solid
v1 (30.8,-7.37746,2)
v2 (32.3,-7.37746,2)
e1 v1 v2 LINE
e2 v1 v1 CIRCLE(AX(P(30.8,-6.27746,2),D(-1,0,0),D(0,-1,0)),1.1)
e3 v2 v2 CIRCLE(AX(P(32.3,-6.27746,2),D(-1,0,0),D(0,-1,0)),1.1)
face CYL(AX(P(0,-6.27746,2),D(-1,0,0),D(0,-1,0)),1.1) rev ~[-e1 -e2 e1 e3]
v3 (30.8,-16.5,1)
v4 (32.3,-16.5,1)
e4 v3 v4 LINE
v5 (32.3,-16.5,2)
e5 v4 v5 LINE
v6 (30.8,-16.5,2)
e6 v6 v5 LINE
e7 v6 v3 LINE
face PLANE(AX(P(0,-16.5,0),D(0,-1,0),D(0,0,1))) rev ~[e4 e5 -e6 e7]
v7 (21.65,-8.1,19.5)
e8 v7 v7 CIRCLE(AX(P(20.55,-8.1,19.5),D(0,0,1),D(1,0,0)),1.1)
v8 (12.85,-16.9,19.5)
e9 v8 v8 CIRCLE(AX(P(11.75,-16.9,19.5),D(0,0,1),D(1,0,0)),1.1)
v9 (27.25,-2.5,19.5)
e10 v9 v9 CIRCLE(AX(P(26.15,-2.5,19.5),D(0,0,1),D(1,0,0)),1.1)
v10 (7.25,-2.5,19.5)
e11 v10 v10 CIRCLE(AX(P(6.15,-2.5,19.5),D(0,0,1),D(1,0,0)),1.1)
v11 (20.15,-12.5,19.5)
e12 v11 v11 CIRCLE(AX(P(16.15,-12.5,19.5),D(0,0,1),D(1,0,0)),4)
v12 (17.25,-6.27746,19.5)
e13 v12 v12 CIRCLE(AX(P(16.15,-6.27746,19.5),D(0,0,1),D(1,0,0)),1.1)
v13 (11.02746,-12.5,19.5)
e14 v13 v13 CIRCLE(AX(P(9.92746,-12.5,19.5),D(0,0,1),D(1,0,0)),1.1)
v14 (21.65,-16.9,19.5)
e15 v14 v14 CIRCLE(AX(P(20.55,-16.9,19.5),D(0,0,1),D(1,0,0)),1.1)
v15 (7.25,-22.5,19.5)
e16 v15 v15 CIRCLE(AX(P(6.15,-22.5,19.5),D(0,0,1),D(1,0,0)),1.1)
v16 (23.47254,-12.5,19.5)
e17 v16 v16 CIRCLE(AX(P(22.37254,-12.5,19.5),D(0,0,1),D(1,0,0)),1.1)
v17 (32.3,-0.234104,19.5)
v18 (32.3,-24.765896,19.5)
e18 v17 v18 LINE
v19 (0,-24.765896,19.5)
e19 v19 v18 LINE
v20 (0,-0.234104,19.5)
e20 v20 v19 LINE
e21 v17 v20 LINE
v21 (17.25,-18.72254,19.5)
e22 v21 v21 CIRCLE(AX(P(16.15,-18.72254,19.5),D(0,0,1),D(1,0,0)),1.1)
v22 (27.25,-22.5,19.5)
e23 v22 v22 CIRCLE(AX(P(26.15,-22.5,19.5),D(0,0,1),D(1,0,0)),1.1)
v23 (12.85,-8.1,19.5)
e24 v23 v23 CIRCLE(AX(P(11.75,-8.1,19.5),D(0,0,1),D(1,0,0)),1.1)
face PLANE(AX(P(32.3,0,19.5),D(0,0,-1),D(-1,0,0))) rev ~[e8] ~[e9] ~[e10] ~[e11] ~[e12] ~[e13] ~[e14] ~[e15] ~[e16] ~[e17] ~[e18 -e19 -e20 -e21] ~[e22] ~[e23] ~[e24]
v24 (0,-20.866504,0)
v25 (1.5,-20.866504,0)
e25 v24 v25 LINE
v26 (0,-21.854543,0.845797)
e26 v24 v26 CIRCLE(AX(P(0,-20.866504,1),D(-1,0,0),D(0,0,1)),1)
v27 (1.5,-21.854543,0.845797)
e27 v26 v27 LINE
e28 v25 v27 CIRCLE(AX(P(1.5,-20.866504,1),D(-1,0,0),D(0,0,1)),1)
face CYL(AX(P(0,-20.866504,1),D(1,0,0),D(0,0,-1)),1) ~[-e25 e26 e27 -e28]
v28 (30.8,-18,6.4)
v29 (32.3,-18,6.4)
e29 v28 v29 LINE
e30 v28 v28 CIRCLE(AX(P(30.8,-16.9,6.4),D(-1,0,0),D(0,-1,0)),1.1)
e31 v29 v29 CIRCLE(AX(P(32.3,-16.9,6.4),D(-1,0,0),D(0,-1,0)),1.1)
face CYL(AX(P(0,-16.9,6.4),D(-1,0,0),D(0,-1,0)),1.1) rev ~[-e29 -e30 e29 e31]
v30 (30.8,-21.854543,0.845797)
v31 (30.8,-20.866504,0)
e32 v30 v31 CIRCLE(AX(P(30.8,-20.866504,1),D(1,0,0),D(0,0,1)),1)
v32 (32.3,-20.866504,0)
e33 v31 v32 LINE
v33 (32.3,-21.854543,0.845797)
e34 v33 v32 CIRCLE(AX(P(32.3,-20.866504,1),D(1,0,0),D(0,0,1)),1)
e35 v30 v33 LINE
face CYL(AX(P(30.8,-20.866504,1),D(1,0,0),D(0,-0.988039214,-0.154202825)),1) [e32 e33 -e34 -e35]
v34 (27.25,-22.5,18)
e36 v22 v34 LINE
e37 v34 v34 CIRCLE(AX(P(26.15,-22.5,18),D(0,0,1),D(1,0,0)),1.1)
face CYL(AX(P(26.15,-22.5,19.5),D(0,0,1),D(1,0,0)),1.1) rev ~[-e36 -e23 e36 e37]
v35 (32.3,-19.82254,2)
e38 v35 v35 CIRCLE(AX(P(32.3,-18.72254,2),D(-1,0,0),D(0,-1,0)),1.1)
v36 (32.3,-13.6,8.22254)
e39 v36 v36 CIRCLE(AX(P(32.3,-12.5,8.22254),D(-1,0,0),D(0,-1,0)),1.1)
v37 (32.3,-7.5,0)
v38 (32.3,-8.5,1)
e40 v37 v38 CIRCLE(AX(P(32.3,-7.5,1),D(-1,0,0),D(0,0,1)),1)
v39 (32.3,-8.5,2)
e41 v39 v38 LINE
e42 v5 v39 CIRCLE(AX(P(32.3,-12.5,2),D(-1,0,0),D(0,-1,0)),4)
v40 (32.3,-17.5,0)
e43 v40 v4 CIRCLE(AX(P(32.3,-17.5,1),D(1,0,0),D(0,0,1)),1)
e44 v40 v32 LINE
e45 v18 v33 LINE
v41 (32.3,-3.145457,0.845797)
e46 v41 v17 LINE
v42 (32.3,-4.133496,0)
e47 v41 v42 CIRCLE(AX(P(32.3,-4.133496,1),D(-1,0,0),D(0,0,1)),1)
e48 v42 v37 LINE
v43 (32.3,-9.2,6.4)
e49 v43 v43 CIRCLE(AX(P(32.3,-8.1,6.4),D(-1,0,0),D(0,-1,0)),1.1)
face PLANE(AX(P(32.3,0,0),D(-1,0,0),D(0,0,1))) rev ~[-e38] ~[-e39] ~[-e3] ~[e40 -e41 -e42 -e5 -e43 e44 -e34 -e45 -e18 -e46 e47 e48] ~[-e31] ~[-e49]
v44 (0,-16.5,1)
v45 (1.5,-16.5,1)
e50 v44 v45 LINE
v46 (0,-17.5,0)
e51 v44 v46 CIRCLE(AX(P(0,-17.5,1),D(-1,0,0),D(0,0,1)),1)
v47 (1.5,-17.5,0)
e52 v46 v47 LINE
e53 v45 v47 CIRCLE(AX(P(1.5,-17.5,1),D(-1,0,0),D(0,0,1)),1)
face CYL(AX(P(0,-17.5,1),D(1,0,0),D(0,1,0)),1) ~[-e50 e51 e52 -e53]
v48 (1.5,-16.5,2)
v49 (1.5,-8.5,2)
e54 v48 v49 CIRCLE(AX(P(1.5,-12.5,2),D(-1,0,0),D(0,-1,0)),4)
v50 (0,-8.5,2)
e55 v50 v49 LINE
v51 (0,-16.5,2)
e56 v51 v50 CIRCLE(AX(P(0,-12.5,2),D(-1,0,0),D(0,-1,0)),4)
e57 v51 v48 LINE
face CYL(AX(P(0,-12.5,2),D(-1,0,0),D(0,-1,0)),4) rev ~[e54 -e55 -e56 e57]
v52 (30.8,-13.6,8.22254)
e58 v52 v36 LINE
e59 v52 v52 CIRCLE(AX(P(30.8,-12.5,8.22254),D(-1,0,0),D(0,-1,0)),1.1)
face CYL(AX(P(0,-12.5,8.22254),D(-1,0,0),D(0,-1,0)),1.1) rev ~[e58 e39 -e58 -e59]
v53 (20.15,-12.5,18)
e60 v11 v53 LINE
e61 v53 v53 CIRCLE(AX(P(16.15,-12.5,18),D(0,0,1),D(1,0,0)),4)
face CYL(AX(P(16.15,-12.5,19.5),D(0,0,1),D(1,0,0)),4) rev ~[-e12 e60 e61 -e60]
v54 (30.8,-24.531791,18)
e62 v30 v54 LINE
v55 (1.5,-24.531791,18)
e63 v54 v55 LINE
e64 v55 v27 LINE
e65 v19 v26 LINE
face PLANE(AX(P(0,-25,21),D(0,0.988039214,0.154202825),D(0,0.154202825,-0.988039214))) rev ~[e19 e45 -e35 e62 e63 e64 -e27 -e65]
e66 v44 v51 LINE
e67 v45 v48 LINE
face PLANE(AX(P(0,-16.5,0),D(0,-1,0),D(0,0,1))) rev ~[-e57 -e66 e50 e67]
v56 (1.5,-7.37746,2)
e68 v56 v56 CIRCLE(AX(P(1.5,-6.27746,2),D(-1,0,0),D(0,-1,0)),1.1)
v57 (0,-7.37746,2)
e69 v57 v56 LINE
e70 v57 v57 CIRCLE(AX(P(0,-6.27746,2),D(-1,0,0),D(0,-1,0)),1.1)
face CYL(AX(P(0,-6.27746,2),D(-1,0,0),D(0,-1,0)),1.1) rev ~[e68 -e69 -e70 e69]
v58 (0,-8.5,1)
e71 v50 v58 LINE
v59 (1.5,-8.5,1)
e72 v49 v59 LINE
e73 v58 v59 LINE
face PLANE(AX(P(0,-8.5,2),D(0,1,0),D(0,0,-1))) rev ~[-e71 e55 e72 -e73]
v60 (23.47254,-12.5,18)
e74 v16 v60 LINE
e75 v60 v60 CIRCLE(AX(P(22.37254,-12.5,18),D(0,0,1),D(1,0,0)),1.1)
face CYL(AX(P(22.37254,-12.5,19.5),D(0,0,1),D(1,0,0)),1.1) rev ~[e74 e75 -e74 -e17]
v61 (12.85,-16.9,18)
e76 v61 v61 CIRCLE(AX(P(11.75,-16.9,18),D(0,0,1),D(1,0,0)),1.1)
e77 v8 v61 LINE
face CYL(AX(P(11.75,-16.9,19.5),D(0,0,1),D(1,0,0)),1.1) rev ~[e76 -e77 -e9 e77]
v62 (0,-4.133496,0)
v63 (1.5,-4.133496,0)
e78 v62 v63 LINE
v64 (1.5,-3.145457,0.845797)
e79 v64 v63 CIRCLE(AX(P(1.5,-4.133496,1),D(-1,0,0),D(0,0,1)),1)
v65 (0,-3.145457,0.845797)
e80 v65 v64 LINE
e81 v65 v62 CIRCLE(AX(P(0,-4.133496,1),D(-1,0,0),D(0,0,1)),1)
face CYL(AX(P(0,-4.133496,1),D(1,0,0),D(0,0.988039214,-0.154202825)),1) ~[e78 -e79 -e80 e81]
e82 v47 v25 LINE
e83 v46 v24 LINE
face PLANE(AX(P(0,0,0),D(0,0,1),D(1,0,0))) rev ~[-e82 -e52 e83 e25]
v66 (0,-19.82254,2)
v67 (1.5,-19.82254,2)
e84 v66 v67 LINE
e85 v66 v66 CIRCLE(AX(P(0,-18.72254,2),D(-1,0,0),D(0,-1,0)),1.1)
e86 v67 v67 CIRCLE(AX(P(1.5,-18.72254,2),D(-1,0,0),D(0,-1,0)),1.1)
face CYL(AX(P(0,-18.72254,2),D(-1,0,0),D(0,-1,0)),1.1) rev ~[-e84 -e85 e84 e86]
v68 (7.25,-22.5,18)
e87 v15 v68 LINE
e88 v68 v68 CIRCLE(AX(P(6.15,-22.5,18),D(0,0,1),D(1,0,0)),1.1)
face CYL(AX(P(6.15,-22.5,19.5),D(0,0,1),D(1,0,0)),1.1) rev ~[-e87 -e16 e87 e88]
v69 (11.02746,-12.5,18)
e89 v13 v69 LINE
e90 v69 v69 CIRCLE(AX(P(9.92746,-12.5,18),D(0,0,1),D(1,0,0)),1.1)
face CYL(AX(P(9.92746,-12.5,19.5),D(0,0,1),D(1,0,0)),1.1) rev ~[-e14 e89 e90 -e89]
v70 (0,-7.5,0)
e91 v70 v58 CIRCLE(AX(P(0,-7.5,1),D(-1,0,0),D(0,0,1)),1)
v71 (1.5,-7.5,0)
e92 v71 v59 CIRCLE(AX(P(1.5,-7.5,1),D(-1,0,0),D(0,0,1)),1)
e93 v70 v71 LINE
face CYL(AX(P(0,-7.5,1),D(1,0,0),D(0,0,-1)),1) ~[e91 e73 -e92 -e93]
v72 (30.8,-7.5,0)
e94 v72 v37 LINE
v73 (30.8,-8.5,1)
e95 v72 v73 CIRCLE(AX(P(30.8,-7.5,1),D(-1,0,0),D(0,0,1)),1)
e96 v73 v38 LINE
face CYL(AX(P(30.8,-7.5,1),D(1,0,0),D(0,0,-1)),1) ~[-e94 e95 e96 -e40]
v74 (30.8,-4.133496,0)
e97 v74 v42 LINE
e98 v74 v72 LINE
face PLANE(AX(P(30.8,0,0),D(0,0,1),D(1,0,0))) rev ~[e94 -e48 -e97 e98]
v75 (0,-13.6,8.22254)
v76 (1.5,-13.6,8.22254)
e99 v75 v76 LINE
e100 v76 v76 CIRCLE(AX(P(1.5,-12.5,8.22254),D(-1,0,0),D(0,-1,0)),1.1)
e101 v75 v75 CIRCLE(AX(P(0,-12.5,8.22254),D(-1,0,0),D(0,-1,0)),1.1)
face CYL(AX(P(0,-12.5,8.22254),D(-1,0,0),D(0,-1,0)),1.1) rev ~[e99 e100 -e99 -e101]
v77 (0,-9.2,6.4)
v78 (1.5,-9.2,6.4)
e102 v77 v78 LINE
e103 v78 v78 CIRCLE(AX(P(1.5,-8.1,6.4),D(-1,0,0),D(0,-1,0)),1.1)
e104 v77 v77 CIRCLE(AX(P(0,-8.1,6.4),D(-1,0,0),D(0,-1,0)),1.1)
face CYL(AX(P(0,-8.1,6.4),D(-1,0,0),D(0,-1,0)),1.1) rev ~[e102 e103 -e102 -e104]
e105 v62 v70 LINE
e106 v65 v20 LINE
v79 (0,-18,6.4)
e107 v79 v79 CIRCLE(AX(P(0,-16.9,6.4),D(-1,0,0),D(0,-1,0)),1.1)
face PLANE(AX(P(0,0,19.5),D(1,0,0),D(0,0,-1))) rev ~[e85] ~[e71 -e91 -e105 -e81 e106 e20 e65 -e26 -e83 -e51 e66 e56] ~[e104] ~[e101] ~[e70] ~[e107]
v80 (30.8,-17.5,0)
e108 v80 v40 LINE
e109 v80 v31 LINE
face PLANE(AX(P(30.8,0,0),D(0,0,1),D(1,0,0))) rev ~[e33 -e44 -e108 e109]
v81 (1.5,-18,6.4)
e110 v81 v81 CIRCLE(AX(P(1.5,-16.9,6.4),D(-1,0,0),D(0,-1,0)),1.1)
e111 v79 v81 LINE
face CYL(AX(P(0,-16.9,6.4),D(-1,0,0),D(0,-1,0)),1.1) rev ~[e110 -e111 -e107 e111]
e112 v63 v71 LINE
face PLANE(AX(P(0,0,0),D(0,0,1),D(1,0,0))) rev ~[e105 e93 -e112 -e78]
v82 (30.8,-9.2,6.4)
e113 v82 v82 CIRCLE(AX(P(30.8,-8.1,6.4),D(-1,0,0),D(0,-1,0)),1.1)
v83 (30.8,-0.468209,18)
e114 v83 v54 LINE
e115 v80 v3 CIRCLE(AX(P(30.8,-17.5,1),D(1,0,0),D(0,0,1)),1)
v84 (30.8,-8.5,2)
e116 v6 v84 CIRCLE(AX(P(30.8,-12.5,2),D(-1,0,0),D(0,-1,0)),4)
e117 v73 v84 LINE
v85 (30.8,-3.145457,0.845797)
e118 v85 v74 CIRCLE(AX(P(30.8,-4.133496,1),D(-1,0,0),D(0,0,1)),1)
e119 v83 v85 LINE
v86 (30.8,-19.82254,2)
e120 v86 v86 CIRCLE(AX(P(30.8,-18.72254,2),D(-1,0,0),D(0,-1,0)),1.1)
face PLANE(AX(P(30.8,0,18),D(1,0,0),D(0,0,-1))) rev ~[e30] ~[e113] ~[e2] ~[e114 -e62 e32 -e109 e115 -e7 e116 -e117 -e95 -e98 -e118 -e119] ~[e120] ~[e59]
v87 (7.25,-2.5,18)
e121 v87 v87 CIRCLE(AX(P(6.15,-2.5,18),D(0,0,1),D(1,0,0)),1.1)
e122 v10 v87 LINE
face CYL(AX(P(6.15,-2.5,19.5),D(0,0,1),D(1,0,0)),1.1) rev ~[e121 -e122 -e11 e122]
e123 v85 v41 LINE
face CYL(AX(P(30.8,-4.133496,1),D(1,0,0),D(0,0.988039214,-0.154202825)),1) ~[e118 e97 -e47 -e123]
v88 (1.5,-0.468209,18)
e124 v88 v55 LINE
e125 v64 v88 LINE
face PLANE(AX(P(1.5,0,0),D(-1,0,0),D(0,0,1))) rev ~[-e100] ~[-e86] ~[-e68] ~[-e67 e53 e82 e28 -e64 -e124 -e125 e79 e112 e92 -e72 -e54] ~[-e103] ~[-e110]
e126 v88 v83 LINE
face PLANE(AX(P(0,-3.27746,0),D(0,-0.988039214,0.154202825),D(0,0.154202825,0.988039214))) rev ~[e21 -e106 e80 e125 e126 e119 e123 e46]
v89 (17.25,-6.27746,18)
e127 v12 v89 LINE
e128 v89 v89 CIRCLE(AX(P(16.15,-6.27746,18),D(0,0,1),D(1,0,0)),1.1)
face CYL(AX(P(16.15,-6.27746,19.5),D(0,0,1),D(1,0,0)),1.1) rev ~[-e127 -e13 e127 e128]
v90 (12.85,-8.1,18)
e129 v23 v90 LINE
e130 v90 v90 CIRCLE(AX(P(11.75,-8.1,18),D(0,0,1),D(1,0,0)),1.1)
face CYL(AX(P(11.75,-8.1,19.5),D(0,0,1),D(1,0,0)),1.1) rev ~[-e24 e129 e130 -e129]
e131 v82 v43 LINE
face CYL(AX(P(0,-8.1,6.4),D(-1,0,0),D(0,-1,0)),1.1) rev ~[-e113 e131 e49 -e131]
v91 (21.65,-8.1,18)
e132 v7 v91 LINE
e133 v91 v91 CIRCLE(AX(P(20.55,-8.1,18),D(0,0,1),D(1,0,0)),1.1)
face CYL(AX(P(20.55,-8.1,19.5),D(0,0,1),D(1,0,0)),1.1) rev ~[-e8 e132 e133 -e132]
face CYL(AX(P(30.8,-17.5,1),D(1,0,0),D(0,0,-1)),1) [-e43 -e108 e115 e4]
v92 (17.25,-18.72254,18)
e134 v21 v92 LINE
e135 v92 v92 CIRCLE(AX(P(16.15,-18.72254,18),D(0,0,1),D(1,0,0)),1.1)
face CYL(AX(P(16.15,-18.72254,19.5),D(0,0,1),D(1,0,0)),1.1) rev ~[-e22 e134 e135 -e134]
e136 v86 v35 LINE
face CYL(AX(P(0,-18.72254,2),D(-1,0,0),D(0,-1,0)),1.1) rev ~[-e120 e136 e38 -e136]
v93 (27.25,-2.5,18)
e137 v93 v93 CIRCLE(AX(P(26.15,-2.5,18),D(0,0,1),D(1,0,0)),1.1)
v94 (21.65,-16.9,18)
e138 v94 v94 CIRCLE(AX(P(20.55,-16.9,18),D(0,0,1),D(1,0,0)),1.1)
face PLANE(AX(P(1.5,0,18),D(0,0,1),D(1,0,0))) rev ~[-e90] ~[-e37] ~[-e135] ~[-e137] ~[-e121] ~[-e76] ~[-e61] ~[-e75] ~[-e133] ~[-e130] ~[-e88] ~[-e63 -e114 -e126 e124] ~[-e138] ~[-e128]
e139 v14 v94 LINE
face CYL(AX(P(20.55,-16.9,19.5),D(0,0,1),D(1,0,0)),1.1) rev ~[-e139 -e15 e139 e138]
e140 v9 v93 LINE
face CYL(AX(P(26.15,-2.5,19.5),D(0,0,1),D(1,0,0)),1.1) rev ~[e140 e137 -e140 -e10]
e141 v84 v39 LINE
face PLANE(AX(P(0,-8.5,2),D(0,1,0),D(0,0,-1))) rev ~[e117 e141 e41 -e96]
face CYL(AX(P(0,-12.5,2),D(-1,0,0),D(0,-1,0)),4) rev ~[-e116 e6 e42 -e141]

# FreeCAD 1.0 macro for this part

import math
import FreeCAD as App
import Part
import Sketcher


def edges_at(feature, points):
    """Names of the edges that pass closest to the given points."""
    edges = feature.Shape.Edges
    near = lambda p: min(range(len(edges)), key=lambda i: edges[i].distToShape(Part.Vertex(*p))[0])
    return sorted({f"Edge{near(p) + 1}" for p in points})


def add_polygon(sketch, points):
    """Adds a closed chain of lines whose ends are joined by coincident constraints."""
    first, n = sketch.GeometryCount, len(points)
    for a, b in zip(points, points[1:] + points[:1]):
        sketch.addGeometry(Part.LineSegment(App.Vector(*a, 0), App.Vector(*b, 0)), False)
    for i in range(n):
        sketch.addConstraint(Sketcher.Constraint("Coincident", first + i, 2, first + (i + 1) % n, 1))

doc = App.newDocument("Part")
body = doc.addObject("PartDesign::Body", "Body")

# Sketch on XZ plane
sketch1 = doc.addObject("Sketcher::SketchObject", "Sketch")
body.addObject(sketch1)
sketch1.AttachmentSupport = (doc.XZ_Plane, [""])
sketch1.MapMode = "FlatFace"
add_polygon(sketch1, [(0, 19.5), (0, 0), (1.5, 0), (1.5, 18), (30.8, 18), (30.8, 0), (32.3, 0), (32.3, 19.5)])  # lines 0-7
sketch1.addConstraint([
    Sketcher.Constraint("Vertical", 0),
    Sketcher.Constraint("Horizontal", 1),
    Sketcher.Constraint("Vertical", 2),
    Sketcher.Constraint("Horizontal", 3),
    Sketcher.Constraint("Vertical", 4),
    Sketcher.Constraint("Horizontal", 5),
    Sketcher.Constraint("Vertical", 6),
    Sketcher.Constraint("Horizontal", 7),
    Sketcher.Constraint("Coincident", 0, 2, -1, 1),
    Sketcher.Constraint("PointOnObject", 4, 2, -1),
    Sketcher.Constraint("Equal", 1, 5),
    Sketcher.Constraint("DistanceY", 2, 1, 2, 2, 18.0),
    Sketcher.Constraint("DistanceX", 1, 1, 1, 2, 1.5),
    Sketcher.Constraint("DistanceX", 3, 1, 3, 2, 29.3),
    Sketcher.Constraint("DistanceY", 0, 2, 0, 1, 19.5),
])
pad1 = doc.addObject("PartDesign::Pad", "Pad")
body.addObject(pad1)
pad1.Profile = sketch1
pad1.Length = 25

# Sketch on YZ plane
sketch2 = doc.addObject("Sketcher::SketchObject", "Sketch001")
body.addObject(sketch2)
sketch2.AttachmentSupport = (doc.YZ_Plane, [""])
sketch2.MapMode = "FlatFace"
sketch2.addGeometry(Part.LineSegment(App.Vector(-16.5, 0, 0), App.Vector(-16.5, 2, 0)), False)  # 0
sketch2.addGeometry(Part.ArcOfCircle(Part.Circle(App.Vector(-12.5, 2, 0), App.Vector(0, 0, 1), 4), math.radians(0), math.radians(180)), False)  # 1
sketch2.addGeometry(Part.LineSegment(App.Vector(-8.5, 2, 0), App.Vector(-8.5, 0, 0)), False)  # 2
sketch2.addGeometry(Part.LineSegment(App.Vector(-8.5, 0, 0), App.Vector(-16.5, 0, 0)), False)  # 3
sketch2.addGeometry(Part.Circle(App.Vector(-18.72254, 2, 0), App.Vector(0, 0, 1), 1.1), False)  # 4
sketch2.addGeometry(Part.Circle(App.Vector(-16.9, 6.4, 0), App.Vector(0, 0, 1), 1.1), False)  # 5
sketch2.addGeometry(Part.Circle(App.Vector(-12.5, 8.22254, 0), App.Vector(0, 0, 1), 1.1), False)  # 6
sketch2.addGeometry(Part.Circle(App.Vector(-8.1, 6.4, 0), App.Vector(0, 0, 1), 1.1), False)  # 7
sketch2.addGeometry(Part.Circle(App.Vector(-6.27746, 2, 0), App.Vector(0, 0, 1), 1.1), False)  # 8
add_polygon(sketch2, [(0, 0), (-3.27746, 0), (0, 21)])  # lines 9-11
add_polygon(sketch2, [(-21.72254, 0), (-25, 0), (-25, 21)])  # lines 12-14
sketch2.addConstraint([
    Sketcher.Constraint("Tangent", 0, 2, 1, 2),
    Sketcher.Constraint("Tangent", 1, 1, 2, 1),
    Sketcher.Constraint("Coincident", 2, 2, 3, 1),
    Sketcher.Constraint("Coincident", 3, 2, 0, 1),
    Sketcher.Constraint("Vertical", 0),
    Sketcher.Constraint("Vertical", 2),
    Sketcher.Constraint("Horizontal", 3),
    Sketcher.Constraint("Horizontal", 9),
    Sketcher.Constraint("Vertical", 11),
    Sketcher.Constraint("Horizontal", 12),
    Sketcher.Constraint("Vertical", 13),
    Sketcher.Constraint("Coincident", 11, 2, -1, 1),
    Sketcher.Constraint("Equal", 4, 5),
    Sketcher.Constraint("Equal", 5, 6),
    Sketcher.Constraint("Equal", 6, 7),
    Sketcher.Constraint("Equal", 7, 8),
    Sketcher.Constraint("PointOnObject", 2, 2, -1),
    Sketcher.Constraint("PointOnObject", 12, 2, -1),
    Sketcher.Constraint("Horizontal", 1, 3, 4, 3),
    Sketcher.Constraint("Horizontal", 5, 3, 7, 3),
    Sketcher.Constraint("Horizontal", 4, 3, 8, 3),
    Sketcher.Constraint("Horizontal", 10, 2, 13, 2),
    Sketcher.Constraint("Vertical", 1, 3, 6, 3),
    Sketcher.Constraint("Equal", 9, 12),
    Sketcher.Constraint("Radius", 1, 4.0),
    Sketcher.Constraint("Diameter", 4, 2.2),
    Sketcher.Constraint("DistanceY", 0, 1, 0, 2, 2.0),
    Sketcher.Constraint("DistanceY", 11, 2, 11, 1, 21.0),
    Sketcher.Constraint("DistanceX", 12, 2, -1, 1, 25.0),
    Sketcher.Constraint("DistanceX", 8, 3, 9, 2, 3.0),
    Sketcher.Constraint("DistanceX", 14, 2, 4, 3, 3.0),
    Sketcher.Constraint("DistanceX", 1, 3, -1, 1, 12.5),
    Sketcher.Constraint("DistanceX", 5, 3, -1, 1, 16.9),
    Sketcher.Constraint("DistanceY", -1, 1, 5, 3, 6.4),
    Sketcher.Constraint("DistanceX", 7, 3, -1, 1, 8.1),
    Sketcher.Constraint("DistanceX", 9, 2, 9, 1, 3.27746),
    Sketcher.Constraint("DistanceY", -1, 1, 6, 3, 8.22254),
])
pocket1 = doc.addObject("PartDesign::Pocket", "Pocket")
body.addObject(pocket1)
pocket1.Profile = sketch2
pocket1.Type = "ThroughAll"
pocket1.Reversed = True

# Sketch on XY plane
sketch3 = doc.addObject("Sketcher::SketchObject", "Sketch002")
body.addObject(sketch3)
sketch3.AttachmentSupport = (doc.XY_Plane, [""])
sketch3.MapMode = "FlatFace"
sketch3.AttachmentOffset = App.Placement(App.Vector(0, 0, 19.5), App.Rotation())
sketch3.addGeometry([
    Part.Circle(App.Vector(6.15, -2.5, 0), App.Vector(0, 0, 1), 1.1),  # 0
    Part.Circle(App.Vector(26.15, -2.5, 0), App.Vector(0, 0, 1), 1.1),  # 1
    Part.Circle(App.Vector(6.15, -22.5, 0), App.Vector(0, 0, 1), 1.1),  # 2
    Part.Circle(App.Vector(26.15, -22.5, 0), App.Vector(0, 0, 1), 1.1),  # 3
    Part.Circle(App.Vector(16.15, -12.5, 0), App.Vector(0, 0, 1), 4),  # 4
    Part.Circle(App.Vector(11.75, -8.1, 0), App.Vector(0, 0, 1), 1.1),  # 5
    Part.Circle(App.Vector(9.92746, -12.5, 0), App.Vector(0, 0, 1), 1.1),  # 6
    Part.Circle(App.Vector(11.75, -16.9, 0), App.Vector(0, 0, 1), 1.1),  # 7
    Part.Circle(App.Vector(16.15, -18.72254, 0), App.Vector(0, 0, 1), 1.1),  # 8
    Part.Circle(App.Vector(20.55, -16.9, 0), App.Vector(0, 0, 1), 1.1),  # 9
    Part.Circle(App.Vector(22.37254, -12.5, 0), App.Vector(0, 0, 1), 1.1),  # 10
    Part.Circle(App.Vector(20.55, -8.1, 0), App.Vector(0, 0, 1), 1.1),  # 11
    Part.Circle(App.Vector(16.15, -6.27746, 0), App.Vector(0, 0, 1), 1.1),  # 12
], False)
sketch3.addConstraint([
    Sketcher.Constraint("Equal", 0, 1),
    Sketcher.Constraint("Equal", 1, 2),
    Sketcher.Constraint("Equal", 2, 3),
    Sketcher.Constraint("Equal", 3, 5),
    Sketcher.Constraint("Equal", 5, 6),
    Sketcher.Constraint("Equal", 6, 7),
    Sketcher.Constraint("Equal", 7, 8),
    Sketcher.Constraint("Equal", 8, 9),
    Sketcher.Constraint("Equal", 9, 10),
    Sketcher.Constraint("Equal", 10, 11),
    Sketcher.Constraint("Equal", 11, 12),
    Sketcher.Constraint("Horizontal", 0, 3, 1, 3),
    Sketcher.Constraint("Horizontal", 2, 3, 3, 3),
    Sketcher.Constraint("Horizontal", 4, 3, 6, 3),
    Sketcher.Constraint("Horizontal", 7, 3, 9, 3),
    Sketcher.Constraint("Horizontal", 6, 3, 10, 3),
    Sketcher.Constraint("Horizontal", 5, 3, 11, 3),
    Sketcher.Constraint("Vertical", 0, 3, 2, 3),
    Sketcher.Constraint("Vertical", 1, 3, 3, 3),
    Sketcher.Constraint("Vertical", 5, 3, 7, 3),
    Sketcher.Constraint("Vertical", 4, 3, 8, 3),
    Sketcher.Constraint("Vertical", 9, 3, 11, 3),
    Sketcher.Constraint("Vertical", 8, 3, 12, 3),
    Sketcher.Constraint("Diameter", 4, 8.0),
    Sketcher.Constraint("Diameter", 0, 2.2),
    Sketcher.Constraint("DistanceX", 0, 3, 1, 3, 20.0),
    Sketcher.Constraint("DistanceY", 2, 3, 0, 3, 20.0),
    Sketcher.Constraint("DistanceX", 0, 3, 4, 3, 10.0),
    Sketcher.Constraint("DistanceY", 4, 3, 0, 3, 10.0),
    Sketcher.Constraint("DistanceY", 0, 3, -1, 1, 2.5),
    Sketcher.Constraint("DistanceY", 5, 3, -1, 1, 8.1),
    Sketcher.Constraint("DistanceY", 7, 3, -1, 1, 16.9),
    Sketcher.Constraint("DistanceX", 5, 3, 4, 3, 4.4),
    Sketcher.Constraint("DistanceX", 8, 3, 9, 3, 4.4),
    Sketcher.Constraint("DistanceX", -1, 1, 0, 3, 6.15),
    Sketcher.Constraint("DistanceX", -1, 1, 6, 3, 9.92746),
    Sketcher.Constraint("DistanceY", 8, 3, -1, 1, 18.72254),
    Sketcher.Constraint("DistanceX", -1, 1, 10, 3, 22.37254),
    Sketcher.Constraint("DistanceY", 12, 3, -1, 1, 6.27746),
])
pocket2 = doc.addObject("PartDesign::Pocket", "Pocket001")
body.addObject(pocket2)
pocket2.Profile = sketch3
pocket2.Type = "ThroughAll"
doc.recompute()

fillet = doc.addObject("PartDesign::Fillet", "Fillet")
body.addObject(fillet)
fillet.Base = (pocket2, edges_at(pocket2, [
    (31.55, -3.277, 0),
    (0.75, -3.277, 0),
    (0.75, -8.5, 0),
    (31.55, -8.5, 0),
    (0.75, -16.5, 0),
    (31.55, -16.5, 0),
    (0.75, -21.723, 0),
    (31.55, -21.723, 0),
]))
fillet.Radius = 1

doc.recompute()
